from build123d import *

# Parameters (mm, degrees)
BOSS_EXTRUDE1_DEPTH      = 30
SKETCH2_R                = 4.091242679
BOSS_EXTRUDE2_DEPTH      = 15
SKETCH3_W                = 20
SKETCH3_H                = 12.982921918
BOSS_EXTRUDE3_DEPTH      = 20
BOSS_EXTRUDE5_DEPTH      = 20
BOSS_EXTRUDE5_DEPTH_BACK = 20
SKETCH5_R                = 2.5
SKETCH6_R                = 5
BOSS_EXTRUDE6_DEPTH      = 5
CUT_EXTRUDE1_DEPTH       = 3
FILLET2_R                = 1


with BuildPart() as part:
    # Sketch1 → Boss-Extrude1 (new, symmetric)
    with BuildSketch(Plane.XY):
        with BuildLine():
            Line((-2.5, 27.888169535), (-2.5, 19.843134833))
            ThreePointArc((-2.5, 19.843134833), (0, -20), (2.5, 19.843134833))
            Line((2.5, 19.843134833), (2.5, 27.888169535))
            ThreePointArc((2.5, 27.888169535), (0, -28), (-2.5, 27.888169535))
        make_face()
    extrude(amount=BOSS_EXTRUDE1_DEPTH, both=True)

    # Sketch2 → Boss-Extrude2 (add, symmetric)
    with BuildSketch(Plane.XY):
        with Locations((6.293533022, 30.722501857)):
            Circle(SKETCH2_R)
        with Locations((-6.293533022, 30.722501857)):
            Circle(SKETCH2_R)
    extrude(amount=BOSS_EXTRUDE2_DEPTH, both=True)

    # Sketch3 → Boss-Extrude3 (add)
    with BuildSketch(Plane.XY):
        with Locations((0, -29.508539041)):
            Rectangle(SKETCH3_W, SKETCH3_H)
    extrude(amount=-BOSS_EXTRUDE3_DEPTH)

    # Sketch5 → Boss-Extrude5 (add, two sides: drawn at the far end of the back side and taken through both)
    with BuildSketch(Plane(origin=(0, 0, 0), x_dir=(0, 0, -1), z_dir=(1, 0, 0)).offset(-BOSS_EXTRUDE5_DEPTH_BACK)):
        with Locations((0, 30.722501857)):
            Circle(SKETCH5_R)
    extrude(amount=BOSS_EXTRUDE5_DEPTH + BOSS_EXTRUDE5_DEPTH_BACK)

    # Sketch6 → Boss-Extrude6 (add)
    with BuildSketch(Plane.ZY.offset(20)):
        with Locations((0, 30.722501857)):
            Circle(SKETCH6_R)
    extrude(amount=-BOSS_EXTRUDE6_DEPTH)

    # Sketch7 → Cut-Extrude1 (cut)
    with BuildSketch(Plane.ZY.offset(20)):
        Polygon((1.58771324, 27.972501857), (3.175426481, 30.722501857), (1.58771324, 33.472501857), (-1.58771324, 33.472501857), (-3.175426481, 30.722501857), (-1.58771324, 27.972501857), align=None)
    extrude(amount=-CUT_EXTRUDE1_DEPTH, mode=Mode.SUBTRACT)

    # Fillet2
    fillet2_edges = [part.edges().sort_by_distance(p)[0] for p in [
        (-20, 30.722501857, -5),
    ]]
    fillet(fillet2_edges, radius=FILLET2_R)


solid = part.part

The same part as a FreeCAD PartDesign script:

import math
import FreeCAD as App
import Part
import Sketcher

V = App.Vector
Q = App.Units.Quantity


def edges_at(feature, points):
    """Names of the edges that pass closest to the given points."""
    edges = feature.Shape.Edges
    near = lambda p: min(range(len(edges)), key=lambda i: edges[i].distToShape(Part.Vertex(*p))[0])
    return sorted({f"Edge{near(p) + 1}" for p in points})

doc = App.newDocument("Part")
body = doc.addObject("PartDesign::Body", "Body")

# Sketch on XY plane
sketch1 = body.newObject("Sketcher::SketchObject", "Sketch")
sketch1.AttachmentSupport = (doc.getObject("XY_Plane"), [""])
sketch1.MapMode = "FlatFace"
sketch1.addGeometry([
    Part.LineSegment(V(-2, 20, 0), V(-2, 28, 0)),
    Part.ArcOfCircle(Part.Circle(V(0, 0, 0), V(0, 0, 1), 28), math.radians(95), math.radians(445)),
    Part.LineSegment(V(2, 28, 0), V(2, 20, 0)),
    Part.ArcOfCircle(Part.Circle(V(0, 0, 0), V(0, 0, 1), 20), math.radians(97), math.radians(443)),
], False)
sketch1.addConstraint([
    Sketcher.Constraint("Coincident", 0, 2, 1, 1),
    Sketcher.Constraint("Coincident", 1, 2, 2, 1),
    Sketcher.Constraint("Coincident", 2, 2, 3, 2),
    Sketcher.Constraint("Coincident", 3, 1, 0, 1),
    Sketcher.Constraint("Vertical", 0),
    Sketcher.Constraint("Vertical", 2),
    Sketcher.Constraint("Coincident", 1, 3, -1, 1),
    Sketcher.Constraint("Coincident", 3, 3, -1, 1),
    Sketcher.Constraint("Horizontal", 0, 2, 1, 2),
    Sketcher.Constraint("Radius", 1, 28.0),
    Sketcher.Constraint("Radius", 3, 20.0),
    Sketcher.Constraint("DistanceX", 0, 2, 1, 2, 5.0),
])
pad1 = body.newObject("PartDesign::Pad", "Pad")
pad1.Profile = sketch1
pad1.Length = 60
pad1.Midplane = True

# Sketch on XY plane
sketch2 = body.newObject("Sketcher::SketchObject", "Sketch001")
sketch2.AttachmentSupport = (doc.getObject("XY_Plane"), [""])
sketch2.MapMode = "FlatFace"
sketch2.addGeometry([
    Part.Circle(V(6.3, 30.7, 0), V(0, 0, 1), 4.1),
    Part.Circle(V(-6.3, 30.7, 0), V(0, 0, 1), 4.1),
], False)
sketch2.addConstraint([
    Sketcher.Constraint("Equal", 0, 1),
    Sketcher.Constraint("Symmetric", 0, 3, 1, 3, -2),
    Sketcher.Constraint("Diameter", 0, 8.182485),
    Sketcher.Constraint("DistanceY", -1, 1, 0, 3, 30.722502),
    Sketcher.Constraint("DistanceX", -1, 1, 0, 3, 6.293533),
])
pad2 = body.newObject("PartDesign::Pad", "Pad001")
pad2.Profile = sketch2
pad2.Length = 30
pad2.Midplane = True

# Sketch on XY plane
sketch3 = body.newObject("Sketcher::SketchObject", "Sketch002")
sketch3.AttachmentSupport = (doc.getObject("XY_Plane"), [""])
sketch3.MapMode = "FlatFace"
sketch3.addGeometry([
    Part.LineSegment(V(-10, -23, 0), V(-10, -36, 0)),
    Part.LineSegment(V(-10, -36, 0), V(10, -36, 0)),
    Part.LineSegment(V(10, -36, 0), V(10, -23, 0)),
    Part.LineSegment(V(10, -23, 0), V(-10, -23, 0)),
], False)
sketch3.addConstraint([
    Sketcher.Constraint("Coincident", 0, 2, 1, 1),
    Sketcher.Constraint("Coincident", 1, 2, 2, 1),
    Sketcher.Constraint("Coincident", 2, 2, 3, 1),
    Sketcher.Constraint("Coincident", 3, 2, 0, 1),
    Sketcher.Constraint("Vertical", 0),
    Sketcher.Constraint("Horizontal", 1),
    Sketcher.Constraint("Vertical", 2),
    Sketcher.Constraint("Horizontal", 3),
    Sketcher.Constraint("DistanceX", 1, 1, 1, 2, 20.0),
    Sketcher.Constraint("DistanceX", 0, 2, -1, 1, 10.0),
    Sketcher.Constraint("DistanceY", 0, 2, -1, 1, 36.0),
    Sketcher.Constraint("DistanceY", 0, 2, 0, 1, 12.982922),
])
pad3 = body.newObject("PartDesign::Pad", "Pad002")
pad3.Profile = sketch3
pad3.Length = 20
pad3.Reversed = True

# Sketch on YZ plane
sketch4 = body.newObject("Sketcher::SketchObject", "Sketch003")
sketch4.AttachmentSupport = (doc.getObject("YZ_Plane"), [""])
sketch4.MapMode = "FlatFace"
sketch4.addGeometry(Part.Circle(V(30.7, 0, 0), V(0, 0, 1), 2.5), False)
sketch4.addConstraint([
    Sketcher.Constraint("PointOnObject", 0, 3, -1),
    Sketcher.Constraint("Diameter", 0, 5.0),
    Sketcher.Constraint("DistanceX", -1, 1, 0, 3, 30.722502),
])
pad4 = body.newObject("PartDesign::Pad", "Pad003")
pad4.Profile = sketch4
pad4.Type = "TwoLengths"
pad4.Length = 20
pad4.Length2 = 20

# Sketch on YZ plane
sketch5 = body.newObject("Sketcher::SketchObject", "Sketch004")
sketch5.AttachmentSupport = (doc.getObject("YZ_Plane"), [""])
sketch5.MapMode = "FlatFace"
sketch5.AttachmentOffset = App.Placement(V(0, 0, -20), App.Rotation())
sketch5.addGeometry(Part.Circle(V(31, 0, 0), V(0, 0, 1), 5), False)
sketch5.addConstraint([
    Sketcher.Constraint("PointOnObject", 0, 3, -1),
    Sketcher.Constraint("Diameter", 0, 10.0),
    Sketcher.Constraint("DistanceX", -1, 1, 0, 3, 30.722502),
])
pad5 = body.newObject("PartDesign::Pad", "Pad004")
pad5.Profile = sketch5
pad5.Length = 5

# Sketch on YZ plane
sketch6 = body.newObject("Sketcher::SketchObject", "Sketch005")
sketch6.AttachmentSupport = (doc.getObject("YZ_Plane"), [""])
sketch6.MapMode = "FlatFace"
sketch6.AttachmentOffset = App.Placement(V(0, 0, -20), App.Rotation())
sketch6.addGeometry([
    Part.LineSegment(V(28, 1.6, 0), V(30.7, 3.2, 0)),  # 0
    Part.LineSegment(V(30.7, 3.2, 0), V(33.5, 1.6, 0)),  # 1
    Part.LineSegment(V(33.5, 1.6, 0), V(33.5, -1.6, 0)),  # 2
    Part.LineSegment(V(33.5, -1.6, 0), V(30.7, -3.2, 0)),  # 3
    Part.LineSegment(V(30.7, -3.2, 0), V(28, -1.6, 0)),  # 4
    Part.LineSegment(V(28, -1.6, 0), V(28, 1.6, 0)),  # 5
], False)
sketch6.addConstraint([
    Sketcher.Constraint("Coincident", 0, 2, 1, 1),
    Sketcher.Constraint("Coincident", 1, 2, 2, 1),
    Sketcher.Constraint("Coincident", 2, 2, 3, 1),
    Sketcher.Constraint("Coincident", 3, 2, 4, 1),
    Sketcher.Constraint("Coincident", 4, 2, 5, 1),
    Sketcher.Constraint("Coincident", 5, 2, 0, 1),
    Sketcher.Constraint("Vertical", 2),
    Sketcher.Constraint("Vertical", 5),
    Sketcher.Constraint("Symmetric", 0, 2, 3, 2, -1),
    Sketcher.Constraint("Parallel", 0, 3),
    Sketcher.Constraint("Parallel", 1, 4),
    Sketcher.Constraint("Horizontal", 2, 2, 4, 2),
    Sketcher.Constraint("Horizontal", 1, 2, 5, 2),
    Sketcher.Constraint("Angle", 0, Q("30 deg")),
    Sketcher.Constraint("DistanceX", 4, 2, 2, 2, 5.5),
    Sketcher.Constraint("DistanceX", -1, 1, 0, 2, 30.722502),
    Sketcher.Constraint("DistanceY", 2, 2, 2, 1, 3.175426),
])
pocket1 = body.newObject("PartDesign::Pocket", "Pocket")
pocket1.Profile = sketch6
pocket1.Length = 3
pocket1.Reversed = True
doc.recompute()

fillet = body.newObject("PartDesign::Fillet", "Fillet")
fillet.Base = (pocket1, edges_at(pocket1, [(-20, 30.723, -5)]))
fillet.Radius = 1

doc.recompute()
